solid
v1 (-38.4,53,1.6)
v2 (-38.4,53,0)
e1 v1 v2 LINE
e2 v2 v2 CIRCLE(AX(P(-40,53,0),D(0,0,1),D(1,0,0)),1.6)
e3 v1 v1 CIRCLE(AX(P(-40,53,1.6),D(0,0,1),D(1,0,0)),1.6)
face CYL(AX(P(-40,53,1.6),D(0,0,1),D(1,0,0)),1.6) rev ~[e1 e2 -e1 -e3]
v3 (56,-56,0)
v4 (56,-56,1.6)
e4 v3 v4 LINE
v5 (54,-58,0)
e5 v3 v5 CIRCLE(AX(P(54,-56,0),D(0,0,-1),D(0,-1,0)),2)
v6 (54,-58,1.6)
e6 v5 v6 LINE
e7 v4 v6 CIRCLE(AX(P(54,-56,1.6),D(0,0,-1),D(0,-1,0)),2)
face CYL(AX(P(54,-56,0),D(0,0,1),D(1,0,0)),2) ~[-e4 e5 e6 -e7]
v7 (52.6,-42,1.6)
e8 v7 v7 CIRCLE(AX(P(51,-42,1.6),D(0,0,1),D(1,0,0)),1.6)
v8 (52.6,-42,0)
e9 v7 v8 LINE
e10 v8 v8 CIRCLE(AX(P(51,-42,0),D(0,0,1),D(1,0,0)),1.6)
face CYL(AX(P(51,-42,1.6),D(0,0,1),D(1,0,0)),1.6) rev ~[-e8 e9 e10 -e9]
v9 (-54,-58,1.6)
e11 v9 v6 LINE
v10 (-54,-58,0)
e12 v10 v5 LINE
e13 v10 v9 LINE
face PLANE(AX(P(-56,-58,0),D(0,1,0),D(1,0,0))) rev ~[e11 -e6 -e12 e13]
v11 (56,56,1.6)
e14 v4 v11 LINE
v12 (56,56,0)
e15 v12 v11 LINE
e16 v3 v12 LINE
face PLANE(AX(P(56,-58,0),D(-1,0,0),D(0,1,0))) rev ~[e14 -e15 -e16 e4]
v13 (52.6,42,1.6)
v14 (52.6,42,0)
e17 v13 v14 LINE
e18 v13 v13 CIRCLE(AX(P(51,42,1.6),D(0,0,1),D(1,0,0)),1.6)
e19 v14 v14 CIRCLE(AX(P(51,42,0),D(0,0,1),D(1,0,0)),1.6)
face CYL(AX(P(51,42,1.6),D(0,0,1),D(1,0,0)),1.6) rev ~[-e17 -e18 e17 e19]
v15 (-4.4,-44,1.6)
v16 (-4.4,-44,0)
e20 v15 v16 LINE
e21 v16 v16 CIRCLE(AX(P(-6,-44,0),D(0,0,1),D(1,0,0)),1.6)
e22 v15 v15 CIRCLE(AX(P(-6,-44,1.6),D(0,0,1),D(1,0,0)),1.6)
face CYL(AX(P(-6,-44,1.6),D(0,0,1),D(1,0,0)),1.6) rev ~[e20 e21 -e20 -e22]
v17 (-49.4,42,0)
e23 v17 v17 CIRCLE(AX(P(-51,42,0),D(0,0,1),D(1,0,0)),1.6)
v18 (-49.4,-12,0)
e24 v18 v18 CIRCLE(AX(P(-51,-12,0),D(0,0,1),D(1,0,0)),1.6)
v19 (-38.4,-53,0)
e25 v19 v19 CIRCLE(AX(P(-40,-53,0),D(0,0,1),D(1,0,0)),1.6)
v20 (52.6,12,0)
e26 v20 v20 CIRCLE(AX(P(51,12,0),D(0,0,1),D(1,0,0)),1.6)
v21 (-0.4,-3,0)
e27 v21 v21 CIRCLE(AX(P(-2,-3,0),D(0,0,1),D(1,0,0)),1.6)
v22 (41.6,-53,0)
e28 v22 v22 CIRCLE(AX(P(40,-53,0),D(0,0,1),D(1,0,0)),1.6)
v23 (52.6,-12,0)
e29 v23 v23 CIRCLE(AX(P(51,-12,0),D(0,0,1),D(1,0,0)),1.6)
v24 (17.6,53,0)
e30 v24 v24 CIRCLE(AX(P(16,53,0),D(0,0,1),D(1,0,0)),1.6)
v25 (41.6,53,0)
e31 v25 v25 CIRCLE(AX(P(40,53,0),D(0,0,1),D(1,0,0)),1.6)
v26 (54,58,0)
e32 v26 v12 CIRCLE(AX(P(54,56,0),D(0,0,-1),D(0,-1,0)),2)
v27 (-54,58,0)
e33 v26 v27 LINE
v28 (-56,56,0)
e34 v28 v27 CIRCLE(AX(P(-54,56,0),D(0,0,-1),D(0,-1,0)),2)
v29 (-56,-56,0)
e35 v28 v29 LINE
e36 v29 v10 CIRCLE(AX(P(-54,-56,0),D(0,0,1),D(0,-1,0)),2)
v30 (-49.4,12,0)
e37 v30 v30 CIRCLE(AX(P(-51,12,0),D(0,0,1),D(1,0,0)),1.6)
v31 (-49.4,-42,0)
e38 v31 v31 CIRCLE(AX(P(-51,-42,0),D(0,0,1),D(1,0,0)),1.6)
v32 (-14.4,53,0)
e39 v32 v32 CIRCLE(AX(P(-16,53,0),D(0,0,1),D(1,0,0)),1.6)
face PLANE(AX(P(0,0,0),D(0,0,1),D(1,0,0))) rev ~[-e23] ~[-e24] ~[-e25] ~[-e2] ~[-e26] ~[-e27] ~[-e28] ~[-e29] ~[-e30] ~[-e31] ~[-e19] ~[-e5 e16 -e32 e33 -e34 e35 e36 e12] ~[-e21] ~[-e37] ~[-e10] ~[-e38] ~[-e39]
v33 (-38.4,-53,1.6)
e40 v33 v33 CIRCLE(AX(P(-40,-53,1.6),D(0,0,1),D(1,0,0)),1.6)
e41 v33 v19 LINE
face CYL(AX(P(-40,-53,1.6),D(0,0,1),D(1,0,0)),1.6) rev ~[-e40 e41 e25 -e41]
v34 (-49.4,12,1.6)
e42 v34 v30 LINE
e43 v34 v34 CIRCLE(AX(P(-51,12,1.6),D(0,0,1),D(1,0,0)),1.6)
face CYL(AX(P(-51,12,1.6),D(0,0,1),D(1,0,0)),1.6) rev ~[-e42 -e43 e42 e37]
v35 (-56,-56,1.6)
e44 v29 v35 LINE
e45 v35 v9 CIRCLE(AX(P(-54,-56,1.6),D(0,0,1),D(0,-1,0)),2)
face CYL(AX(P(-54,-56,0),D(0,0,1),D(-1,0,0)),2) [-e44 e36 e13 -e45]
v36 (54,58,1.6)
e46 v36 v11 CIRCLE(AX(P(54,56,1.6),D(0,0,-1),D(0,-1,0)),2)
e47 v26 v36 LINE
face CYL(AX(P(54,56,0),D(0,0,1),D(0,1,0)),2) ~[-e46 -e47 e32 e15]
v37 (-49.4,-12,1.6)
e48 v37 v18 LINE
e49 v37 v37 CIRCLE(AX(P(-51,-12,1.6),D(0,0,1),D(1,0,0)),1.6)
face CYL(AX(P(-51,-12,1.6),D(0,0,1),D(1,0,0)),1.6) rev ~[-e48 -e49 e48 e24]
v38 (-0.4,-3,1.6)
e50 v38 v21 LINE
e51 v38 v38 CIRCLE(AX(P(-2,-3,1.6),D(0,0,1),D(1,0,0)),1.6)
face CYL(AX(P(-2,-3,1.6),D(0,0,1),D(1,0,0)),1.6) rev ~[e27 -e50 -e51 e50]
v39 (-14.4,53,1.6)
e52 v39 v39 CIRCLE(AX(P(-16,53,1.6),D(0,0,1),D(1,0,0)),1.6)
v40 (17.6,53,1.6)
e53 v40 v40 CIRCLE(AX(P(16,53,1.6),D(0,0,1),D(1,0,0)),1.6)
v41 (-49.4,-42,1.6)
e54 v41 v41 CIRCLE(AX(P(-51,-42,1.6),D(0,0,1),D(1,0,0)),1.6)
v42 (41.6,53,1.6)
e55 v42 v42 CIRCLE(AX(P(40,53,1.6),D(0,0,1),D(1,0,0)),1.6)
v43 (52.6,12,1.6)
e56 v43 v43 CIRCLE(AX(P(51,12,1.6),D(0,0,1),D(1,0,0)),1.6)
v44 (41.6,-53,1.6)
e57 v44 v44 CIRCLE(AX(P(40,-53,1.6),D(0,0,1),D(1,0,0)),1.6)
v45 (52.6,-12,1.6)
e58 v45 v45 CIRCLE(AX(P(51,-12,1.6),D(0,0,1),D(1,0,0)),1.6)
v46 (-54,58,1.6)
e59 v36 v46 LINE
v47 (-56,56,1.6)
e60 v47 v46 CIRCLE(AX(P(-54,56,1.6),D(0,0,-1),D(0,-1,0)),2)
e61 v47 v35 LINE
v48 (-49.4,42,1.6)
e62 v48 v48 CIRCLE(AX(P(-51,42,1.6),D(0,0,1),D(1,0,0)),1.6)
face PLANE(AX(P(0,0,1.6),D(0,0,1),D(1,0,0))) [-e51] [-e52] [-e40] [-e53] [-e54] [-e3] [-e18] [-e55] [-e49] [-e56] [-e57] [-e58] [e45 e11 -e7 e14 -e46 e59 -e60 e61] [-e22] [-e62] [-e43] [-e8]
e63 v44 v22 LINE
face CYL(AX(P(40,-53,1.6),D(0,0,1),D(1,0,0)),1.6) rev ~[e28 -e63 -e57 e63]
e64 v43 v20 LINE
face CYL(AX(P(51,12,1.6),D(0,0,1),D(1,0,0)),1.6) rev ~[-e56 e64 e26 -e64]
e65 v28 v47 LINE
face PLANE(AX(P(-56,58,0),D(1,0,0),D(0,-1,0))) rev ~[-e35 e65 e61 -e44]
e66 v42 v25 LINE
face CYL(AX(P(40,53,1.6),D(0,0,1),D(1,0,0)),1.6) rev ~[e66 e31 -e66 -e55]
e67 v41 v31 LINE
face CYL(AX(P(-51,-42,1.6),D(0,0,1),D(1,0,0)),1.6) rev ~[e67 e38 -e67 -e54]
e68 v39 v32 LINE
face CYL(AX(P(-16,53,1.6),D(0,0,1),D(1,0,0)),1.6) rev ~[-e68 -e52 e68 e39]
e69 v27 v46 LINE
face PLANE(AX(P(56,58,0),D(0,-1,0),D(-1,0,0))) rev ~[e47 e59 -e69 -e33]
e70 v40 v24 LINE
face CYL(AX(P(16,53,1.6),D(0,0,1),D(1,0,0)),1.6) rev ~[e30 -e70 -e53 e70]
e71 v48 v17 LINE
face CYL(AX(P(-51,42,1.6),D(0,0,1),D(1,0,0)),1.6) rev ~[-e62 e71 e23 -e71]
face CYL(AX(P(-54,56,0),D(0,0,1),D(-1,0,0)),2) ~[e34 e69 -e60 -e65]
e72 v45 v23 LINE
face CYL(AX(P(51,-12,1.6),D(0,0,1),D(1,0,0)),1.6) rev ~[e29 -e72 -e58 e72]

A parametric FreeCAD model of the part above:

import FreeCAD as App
import Part
import Sketcher


def edges_at(feature, points):
    """Names of the edges that pass closest to the given points."""
    edges = feature.Shape.Edges
    near = lambda p: min(range(len(edges)), key=lambda i: edges[i].distToShape(Part.Vertex(*p))[0])
    return sorted({f"Edge{near(p) + 1}" for p in points})

doc = App.newDocument("Part")
body = doc.addObject("PartDesign::Body", "Body")

sketch1 = body.newObject("Sketcher::SketchObject", "Sketch")
sketch1.AttachmentSupport = (doc.getObject("XY_Plane"), [""])
sketch1.MapMode = "FlatFace"
sketch1.addGeometry(Part.LineSegment(App.Vector(-56, 58, 0), App.Vector(-56, -58, 0)), False)
sketch1.addGeometry(Part.LineSegment(App.Vector(-56, -58, 0), App.Vector(56, -58, 0)), False)
sketch1.addGeometry(Part.LineSegment(App.Vector(56, -58, 0), App.Vector(56, 58, 0)), False)
sketch1.addGeometry(Part.LineSegment(App.Vector(56, 58, 0), App.Vector(-56, 58, 0)), False)
sketch1.addConstraint(Sketcher.Constraint("Coincident", 0, 2, 1, 1))
sketch1.addConstraint(Sketcher.Constraint("Coincident", 1, 2, 2, 1))
sketch1.addConstraint(Sketcher.Constraint("Coincident", 2, 2, 3, 1))
sketch1.addConstraint(Sketcher.Constraint("Coincident", 3, 2, 0, 1))
sketch1.addConstraint(Sketcher.Constraint("Vertical", 0))
sketch1.addConstraint(Sketcher.Constraint("Horizontal", 1))
sketch1.addConstraint(Sketcher.Constraint("Vertical", 2))
sketch1.addConstraint(Sketcher.Constraint("Horizontal", 3))
sketch1.addConstraint(Sketcher.Constraint("Symmetric", 0, 2, 2, 2, -1, 1))
sketch1.addConstraint(Sketcher.Constraint("DistanceX", 1, 1, 1, 2, 112.0))
sketch1.addConstraint(Sketcher.Constraint("DistanceY", 0, 2, 0, 1, 116.0))
pad1 = body.newObject("PartDesign::Pad", "Pad")
pad1.Profile = sketch1
pad1.Length = 1.6
doc.recompute()

fillet = body.newObject("PartDesign::Fillet", "Fillet")
fillet.Base = (pad1, edges_at(pad1, [
    (-56, 58, 0.8),
    (-56, -58, 0.8),
    (56, -58, 0.8),
    (56, 58, 0.8),
]))
fillet.Radius = 2

sketch2 = body.newObject("Sketcher::SketchObject", "Sketch001")
sketch2.AttachmentSupport = (doc.getObject("XY_Plane"), [""])
sketch2.MapMode = "FlatFace"
sketch2.AttachmentOffset = App.Placement(App.Vector(0, 0, 1.6), App.Rotation())
sketch2.addGeometry(Part.Circle(App.Vector(-2, -3, 0), App.Vector(0, 0, 1), 1.6), False)
sketch2.addGeometry(Part.Circle(App.Vector(-6, -44, 0), App.Vector(0, 0, 1), 1.6), False)
sketch2.addGeometry(Part.Circle(App.Vector(40, -53, 0), App.Vector(0, 0, 1), 1.6), False)
sketch2.addGeometry(Part.Circle(App.Vector(51, -42, 0), App.Vector(0, 0, 1), 1.6), False)
sketch2.addGeometry(Part.Circle(App.Vector(51, -12, 0), App.Vector(0, 0, 1), 1.6), False)
sketch2.addGeometry(Part.Circle(App.Vector(-40, -53, 0), App.Vector(0, 0, 1), 1.6), False)
sketch2.addGeometry(Part.Circle(App.Vector(-51, -42, 0), App.Vector(0, 0, 1), 1.6), False)
sketch2.addGeometry(Part.Circle(App.Vector(-51, -12, 0), App.Vector(0, 0, 1), 1.6), False)
sketch2.addGeometry(Part.Circle(App.Vector(40, 53, 0), App.Vector(0, 0, 1), 1.6), False)
sketch2.addGeometry(Part.Circle(App.Vector(51, 42, 0), App.Vector(0, 0, 1), 1.6), False)
sketch2.addGeometry(Part.Circle(App.Vector(51, 12, 0), App.Vector(0, 0, 1), 1.6), False)
sketch2.addGeometry(Part.Circle(App.Vector(-51, 12, 0), App.Vector(0, 0, 1), 1.6), False)
sketch2.addGeometry(Part.Circle(App.Vector(-51, 42, 0), App.Vector(0, 0, 1), 1.6), False)
sketch2.addGeometry(Part.Circle(App.Vector(-40, 53, 0), App.Vector(0, 0, 1), 1.6), False)
sketch2.addGeometry(Part.Circle(App.Vector(16, 53, 0), App.Vector(0, 0, 1), 1.6), False)
sketch2.addGeometry(Part.Circle(App.Vector(-16, 53, 0), App.Vector(0, 0, 1), 1.6), False)
sketch2.addConstraint(Sketcher.Constraint("Equal", 0, 1))
sketch2.addConstraint(Sketcher.Constraint("Equal", 1, 2))
sketch2.addConstraint(Sketcher.Constraint("Equal", 2, 3))
sketch2.addConstraint(Sketcher.Constraint("Equal", 3, 4))
sketch2.addConstraint(Sketcher.Constraint("Equal", 4, 5))
sketch2.addConstraint(Sketcher.Constraint("Equal", 5, 6))
sketch2.addConstraint(Sketcher.Constraint("Equal", 6, 7))
sketch2.addConstraint(Sketcher.Constraint("Equal", 7, 8))
sketch2.addConstraint(Sketcher.Constraint("Equal", 8, 9))
sketch2.addConstraint(Sketcher.Constraint("Equal", 9, 10))
sketch2.addConstraint(Sketcher.Constraint("Equal", 10, 11))
sketch2.addConstraint(Sketcher.Constraint("Equal", 11, 12))
sketch2.addConstraint(Sketcher.Constraint("Equal", 12, 13))
sketch2.addConstraint(Sketcher.Constraint("Equal", 13, 14))
sketch2.addConstraint(Sketcher.Constraint("Equal", 14, 15))
sketch2.addConstraint(Sketcher.Constraint("Symmetric", 5, 3, 8, 3, -1, 1))
sketch2.addConstraint(Sketcher.Constraint("Symmetric", 6, 3, 9, 3, -1, 1))
sketch2.addConstraint(Sketcher.Constraint("Symmetric", 7, 3, 10, 3, -1, 1))
sketch2.addConstraint(Sketcher.Constraint("Symmetric", 4, 3, 11, 3, -1, 1))
sketch2.addConstraint(Sketcher.Constraint("Symmetric", 3, 3, 12, 3, -1, 1))
sketch2.addConstraint(Sketcher.Constraint("Symmetric", 2, 3, 13, 3, -1, 1))
sketch2.addConstraint(Sketcher.Constraint("Symmetric", 2, 3, 5, 3, -2))
sketch2.addConstraint(Sketcher.Constraint("Symmetric", 3, 3, 6, 3, -2))
sketch2.addConstraint(Sketcher.Constraint("Symmetric", 4, 3, 7, 3, -2))
sketch2.addConstraint(Sketcher.Constraint("Symmetric", 14, 3, 15, 3, -2))
sketch2.addConstraint(Sketcher.Constraint("Horizontal", 13, 3, 14, 3))
sketch2.addConstraint(Sketcher.Constraint("Vertical", 3, 3, 4, 3))
sketch2.addConstraint(Sketcher.Constraint("Diameter", 0, 3.2))
sketch2.addConstraint(Sketcher.Constraint("DistanceX", 0, 3, -1, 1, 2.0))
sketch2.addConstraint(Sketcher.Constraint("DistanceY", 0, 3, -1, 1, 3.0))
sketch2.addConstraint(Sketcher.Constraint("DistanceX", 1, 3, -1, 1, 6.0))
sketch2.addConstraint(Sketcher.Constraint("DistanceY", 1, 3, -1, 1, 44.0))
sketch2.addConstraint(Sketcher.Constraint("DistanceY", 4, 3, -1, 1, 12.0))
sketch2.addConstraint(Sketcher.Constraint("DistanceX", -1, 1, 14, 3, 16.0))
sketch2.addConstraint(Sketcher.Constraint("DistanceY", 1, 3, 3, 3, 2.0))
sketch2.addConstraint(Sketcher.Constraint("DistanceX", -1, 1, 2, 3, 40.0))
sketch2.addConstraint(Sketcher.Constraint("DistanceY", 2, 3, -1, 1, 53.0))
sketch2.addConstraint(Sketcher.Constraint("DistanceX", -1, 1, 3, 3, 51.0))
pocket1 = body.newObject("PartDesign::Pocket", "Pocket")
pocket1.Profile = sketch2
pocket1.Type = "ThroughAll"

doc.recompute()
